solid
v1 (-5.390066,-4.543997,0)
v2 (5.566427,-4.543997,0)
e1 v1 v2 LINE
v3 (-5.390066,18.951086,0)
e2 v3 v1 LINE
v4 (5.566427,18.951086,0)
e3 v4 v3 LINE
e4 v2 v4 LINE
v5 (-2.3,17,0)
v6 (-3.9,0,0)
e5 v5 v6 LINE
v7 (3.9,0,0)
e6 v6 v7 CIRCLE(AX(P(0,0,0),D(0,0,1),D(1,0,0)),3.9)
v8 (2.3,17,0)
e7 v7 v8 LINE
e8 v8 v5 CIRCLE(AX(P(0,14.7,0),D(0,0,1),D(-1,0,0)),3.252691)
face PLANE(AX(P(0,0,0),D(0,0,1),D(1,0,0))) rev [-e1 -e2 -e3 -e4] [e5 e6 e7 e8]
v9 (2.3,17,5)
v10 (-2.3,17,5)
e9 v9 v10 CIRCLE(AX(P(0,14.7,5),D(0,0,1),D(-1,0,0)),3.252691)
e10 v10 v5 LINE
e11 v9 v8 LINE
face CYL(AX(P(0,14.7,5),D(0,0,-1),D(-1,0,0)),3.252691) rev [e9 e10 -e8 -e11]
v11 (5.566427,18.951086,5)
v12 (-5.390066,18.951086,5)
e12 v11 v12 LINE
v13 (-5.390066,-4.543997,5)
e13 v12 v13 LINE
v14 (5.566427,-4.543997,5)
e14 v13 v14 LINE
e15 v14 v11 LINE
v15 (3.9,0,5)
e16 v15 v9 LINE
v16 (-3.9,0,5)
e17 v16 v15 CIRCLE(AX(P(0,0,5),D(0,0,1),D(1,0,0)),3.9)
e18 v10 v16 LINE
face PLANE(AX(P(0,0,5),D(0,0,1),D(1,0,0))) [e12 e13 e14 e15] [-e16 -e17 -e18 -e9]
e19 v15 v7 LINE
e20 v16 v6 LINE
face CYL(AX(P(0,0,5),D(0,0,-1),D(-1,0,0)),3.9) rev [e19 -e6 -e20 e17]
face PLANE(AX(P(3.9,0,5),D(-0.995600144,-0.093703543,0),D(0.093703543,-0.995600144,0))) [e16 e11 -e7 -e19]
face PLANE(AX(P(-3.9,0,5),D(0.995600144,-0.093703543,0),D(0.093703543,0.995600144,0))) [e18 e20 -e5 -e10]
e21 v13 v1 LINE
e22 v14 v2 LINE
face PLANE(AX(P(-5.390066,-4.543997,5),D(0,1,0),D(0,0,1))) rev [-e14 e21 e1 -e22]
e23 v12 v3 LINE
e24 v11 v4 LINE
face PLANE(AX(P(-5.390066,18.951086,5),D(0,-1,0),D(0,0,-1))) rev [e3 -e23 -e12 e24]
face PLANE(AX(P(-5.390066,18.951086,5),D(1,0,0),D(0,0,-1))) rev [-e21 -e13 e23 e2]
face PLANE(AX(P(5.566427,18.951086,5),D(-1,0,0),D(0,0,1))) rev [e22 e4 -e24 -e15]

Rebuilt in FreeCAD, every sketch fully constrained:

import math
import FreeCAD as App
import Part
import Sketcher

V = App.Vector
Q = App.Units.Quantity

doc = App.newDocument("Part")
body = doc.addObject("PartDesign::Body", "Body")

# Sketch on XY plane
sketch1 = body.newObject("Sketcher::SketchObject", "Sketch")
sketch1.AttachmentSupport = (doc.getObject("XY_Plane"), [""])
sketch1.MapMode = "FlatFace"
sketch1.addGeometry(Part.LineSegment(V(-5.4, 19, 0), V(-5.4, -4.5, 0)), False)
sketch1.addGeometry(Part.LineSegment(V(-5.4, -4.5, 0), V(5.6, -4.5, 0)), False)
sketch1.addGeometry(Part.LineSegment(V(5.6, -4.5, 0), V(5.6, 19, 0)), False)
sketch1.addGeometry(Part.LineSegment(V(5.6, 19, 0), V(-5.4, 19, 0)), False)
sketch1.addGeometry(Part.ArcOfCircle(Part.Circle(V(0, 0, 0), V(0, 0, 1), 3.9), math.radians(180), math.radians(360)), False)
sketch1.addGeometry(Part.LineSegment(V(-3.9, 0, 0), V(-2.3, 17, 0)), False)
sketch1.addGeometry(Part.ArcOfCircle(Part.Circle(V(0, 14.7, 0), V(0, 0, 1), 3.3), math.radians(45), math.radians(135)), False)
sketch1.addGeometry(Part.LineSegment(V(2.3, 17, 0), V(3.9, 0, 0)), False)
sketch1.addConstraint(Sketcher.Constraint("Coincident", 0, 2, 1, 1))
sketch1.addConstraint(Sketcher.Constraint("Coincident", 1, 2, 2, 1))
sketch1.addConstraint(Sketcher.Constraint("Coincident", 2, 2, 3, 1))
sketch1.addConstraint(Sketcher.Constraint("Coincident", 3, 2, 0, 1))
sketch1.addConstraint(Sketcher.Constraint("Coincident", 4, 1, 5, 1))
sketch1.addConstraint(Sketcher.Constraint("Coincident", 5, 2, 6, 2))
sketch1.addConstraint(Sketcher.Constraint("Coincident", 6, 1, 7, 1))
sketch1.addConstraint(Sketcher.Constraint("Coincident", 7, 2, 4, 2))
sketch1.addConstraint(Sketcher.Constraint("Vertical", 0))
sketch1.addConstraint(Sketcher.Constraint("Horizontal", 1))
sketch1.addConstraint(Sketcher.Constraint("Vertical", 2))
sketch1.addConstraint(Sketcher.Constraint("Horizontal", 3))
sketch1.addConstraint(Sketcher.Constraint("Coincident", 4, 3, -1, 1))
sketch1.addConstraint(Sketcher.Constraint("Symmetric", 5, 2, 6, 1, -2))
sketch1.addConstraint(Sketcher.Constraint("PointOnObject", 4, 1, -1))
sketch1.addConstraint(Sketcher.Constraint("PointOnObject", 7, 2, -1))
sketch1.addConstraint(Sketcher.Constraint("Radius", 4, Q("3.9 mm")))
sketch1.addConstraint(Sketcher.Constraint("DistanceY", -1, 1, 5, 2, Q("17 mm")))
sketch1.addConstraint(Sketcher.Constraint("DistanceY", -1, 1, 6, 3, Q("14.7 mm")))
sketch1.addConstraint(Sketcher.Constraint("DistanceX", 5, 2, -1, 1, Q("2.3 mm")))
sketch1.addConstraint(Sketcher.Constraint("DistanceX", 1, 1, 1, 2, Q("10.956493 mm")))
sketch1.addConstraint(Sketcher.Constraint("DistanceY", 0, 2, 0, 1, Q("23.495083 mm")))
sketch1.addConstraint(Sketcher.Constraint("DistanceX", 0, 2, -1, 1, Q("5.390066 mm")))
sketch1.addConstraint(Sketcher.Constraint("DistanceY", 0, 2, -1, 1, Q("4.543997 mm")))
pad1 = body.newObject("PartDesign::Pad", "Pad")
pad1.Profile = sketch1
pad1.Length = 5

doc.recompute()
